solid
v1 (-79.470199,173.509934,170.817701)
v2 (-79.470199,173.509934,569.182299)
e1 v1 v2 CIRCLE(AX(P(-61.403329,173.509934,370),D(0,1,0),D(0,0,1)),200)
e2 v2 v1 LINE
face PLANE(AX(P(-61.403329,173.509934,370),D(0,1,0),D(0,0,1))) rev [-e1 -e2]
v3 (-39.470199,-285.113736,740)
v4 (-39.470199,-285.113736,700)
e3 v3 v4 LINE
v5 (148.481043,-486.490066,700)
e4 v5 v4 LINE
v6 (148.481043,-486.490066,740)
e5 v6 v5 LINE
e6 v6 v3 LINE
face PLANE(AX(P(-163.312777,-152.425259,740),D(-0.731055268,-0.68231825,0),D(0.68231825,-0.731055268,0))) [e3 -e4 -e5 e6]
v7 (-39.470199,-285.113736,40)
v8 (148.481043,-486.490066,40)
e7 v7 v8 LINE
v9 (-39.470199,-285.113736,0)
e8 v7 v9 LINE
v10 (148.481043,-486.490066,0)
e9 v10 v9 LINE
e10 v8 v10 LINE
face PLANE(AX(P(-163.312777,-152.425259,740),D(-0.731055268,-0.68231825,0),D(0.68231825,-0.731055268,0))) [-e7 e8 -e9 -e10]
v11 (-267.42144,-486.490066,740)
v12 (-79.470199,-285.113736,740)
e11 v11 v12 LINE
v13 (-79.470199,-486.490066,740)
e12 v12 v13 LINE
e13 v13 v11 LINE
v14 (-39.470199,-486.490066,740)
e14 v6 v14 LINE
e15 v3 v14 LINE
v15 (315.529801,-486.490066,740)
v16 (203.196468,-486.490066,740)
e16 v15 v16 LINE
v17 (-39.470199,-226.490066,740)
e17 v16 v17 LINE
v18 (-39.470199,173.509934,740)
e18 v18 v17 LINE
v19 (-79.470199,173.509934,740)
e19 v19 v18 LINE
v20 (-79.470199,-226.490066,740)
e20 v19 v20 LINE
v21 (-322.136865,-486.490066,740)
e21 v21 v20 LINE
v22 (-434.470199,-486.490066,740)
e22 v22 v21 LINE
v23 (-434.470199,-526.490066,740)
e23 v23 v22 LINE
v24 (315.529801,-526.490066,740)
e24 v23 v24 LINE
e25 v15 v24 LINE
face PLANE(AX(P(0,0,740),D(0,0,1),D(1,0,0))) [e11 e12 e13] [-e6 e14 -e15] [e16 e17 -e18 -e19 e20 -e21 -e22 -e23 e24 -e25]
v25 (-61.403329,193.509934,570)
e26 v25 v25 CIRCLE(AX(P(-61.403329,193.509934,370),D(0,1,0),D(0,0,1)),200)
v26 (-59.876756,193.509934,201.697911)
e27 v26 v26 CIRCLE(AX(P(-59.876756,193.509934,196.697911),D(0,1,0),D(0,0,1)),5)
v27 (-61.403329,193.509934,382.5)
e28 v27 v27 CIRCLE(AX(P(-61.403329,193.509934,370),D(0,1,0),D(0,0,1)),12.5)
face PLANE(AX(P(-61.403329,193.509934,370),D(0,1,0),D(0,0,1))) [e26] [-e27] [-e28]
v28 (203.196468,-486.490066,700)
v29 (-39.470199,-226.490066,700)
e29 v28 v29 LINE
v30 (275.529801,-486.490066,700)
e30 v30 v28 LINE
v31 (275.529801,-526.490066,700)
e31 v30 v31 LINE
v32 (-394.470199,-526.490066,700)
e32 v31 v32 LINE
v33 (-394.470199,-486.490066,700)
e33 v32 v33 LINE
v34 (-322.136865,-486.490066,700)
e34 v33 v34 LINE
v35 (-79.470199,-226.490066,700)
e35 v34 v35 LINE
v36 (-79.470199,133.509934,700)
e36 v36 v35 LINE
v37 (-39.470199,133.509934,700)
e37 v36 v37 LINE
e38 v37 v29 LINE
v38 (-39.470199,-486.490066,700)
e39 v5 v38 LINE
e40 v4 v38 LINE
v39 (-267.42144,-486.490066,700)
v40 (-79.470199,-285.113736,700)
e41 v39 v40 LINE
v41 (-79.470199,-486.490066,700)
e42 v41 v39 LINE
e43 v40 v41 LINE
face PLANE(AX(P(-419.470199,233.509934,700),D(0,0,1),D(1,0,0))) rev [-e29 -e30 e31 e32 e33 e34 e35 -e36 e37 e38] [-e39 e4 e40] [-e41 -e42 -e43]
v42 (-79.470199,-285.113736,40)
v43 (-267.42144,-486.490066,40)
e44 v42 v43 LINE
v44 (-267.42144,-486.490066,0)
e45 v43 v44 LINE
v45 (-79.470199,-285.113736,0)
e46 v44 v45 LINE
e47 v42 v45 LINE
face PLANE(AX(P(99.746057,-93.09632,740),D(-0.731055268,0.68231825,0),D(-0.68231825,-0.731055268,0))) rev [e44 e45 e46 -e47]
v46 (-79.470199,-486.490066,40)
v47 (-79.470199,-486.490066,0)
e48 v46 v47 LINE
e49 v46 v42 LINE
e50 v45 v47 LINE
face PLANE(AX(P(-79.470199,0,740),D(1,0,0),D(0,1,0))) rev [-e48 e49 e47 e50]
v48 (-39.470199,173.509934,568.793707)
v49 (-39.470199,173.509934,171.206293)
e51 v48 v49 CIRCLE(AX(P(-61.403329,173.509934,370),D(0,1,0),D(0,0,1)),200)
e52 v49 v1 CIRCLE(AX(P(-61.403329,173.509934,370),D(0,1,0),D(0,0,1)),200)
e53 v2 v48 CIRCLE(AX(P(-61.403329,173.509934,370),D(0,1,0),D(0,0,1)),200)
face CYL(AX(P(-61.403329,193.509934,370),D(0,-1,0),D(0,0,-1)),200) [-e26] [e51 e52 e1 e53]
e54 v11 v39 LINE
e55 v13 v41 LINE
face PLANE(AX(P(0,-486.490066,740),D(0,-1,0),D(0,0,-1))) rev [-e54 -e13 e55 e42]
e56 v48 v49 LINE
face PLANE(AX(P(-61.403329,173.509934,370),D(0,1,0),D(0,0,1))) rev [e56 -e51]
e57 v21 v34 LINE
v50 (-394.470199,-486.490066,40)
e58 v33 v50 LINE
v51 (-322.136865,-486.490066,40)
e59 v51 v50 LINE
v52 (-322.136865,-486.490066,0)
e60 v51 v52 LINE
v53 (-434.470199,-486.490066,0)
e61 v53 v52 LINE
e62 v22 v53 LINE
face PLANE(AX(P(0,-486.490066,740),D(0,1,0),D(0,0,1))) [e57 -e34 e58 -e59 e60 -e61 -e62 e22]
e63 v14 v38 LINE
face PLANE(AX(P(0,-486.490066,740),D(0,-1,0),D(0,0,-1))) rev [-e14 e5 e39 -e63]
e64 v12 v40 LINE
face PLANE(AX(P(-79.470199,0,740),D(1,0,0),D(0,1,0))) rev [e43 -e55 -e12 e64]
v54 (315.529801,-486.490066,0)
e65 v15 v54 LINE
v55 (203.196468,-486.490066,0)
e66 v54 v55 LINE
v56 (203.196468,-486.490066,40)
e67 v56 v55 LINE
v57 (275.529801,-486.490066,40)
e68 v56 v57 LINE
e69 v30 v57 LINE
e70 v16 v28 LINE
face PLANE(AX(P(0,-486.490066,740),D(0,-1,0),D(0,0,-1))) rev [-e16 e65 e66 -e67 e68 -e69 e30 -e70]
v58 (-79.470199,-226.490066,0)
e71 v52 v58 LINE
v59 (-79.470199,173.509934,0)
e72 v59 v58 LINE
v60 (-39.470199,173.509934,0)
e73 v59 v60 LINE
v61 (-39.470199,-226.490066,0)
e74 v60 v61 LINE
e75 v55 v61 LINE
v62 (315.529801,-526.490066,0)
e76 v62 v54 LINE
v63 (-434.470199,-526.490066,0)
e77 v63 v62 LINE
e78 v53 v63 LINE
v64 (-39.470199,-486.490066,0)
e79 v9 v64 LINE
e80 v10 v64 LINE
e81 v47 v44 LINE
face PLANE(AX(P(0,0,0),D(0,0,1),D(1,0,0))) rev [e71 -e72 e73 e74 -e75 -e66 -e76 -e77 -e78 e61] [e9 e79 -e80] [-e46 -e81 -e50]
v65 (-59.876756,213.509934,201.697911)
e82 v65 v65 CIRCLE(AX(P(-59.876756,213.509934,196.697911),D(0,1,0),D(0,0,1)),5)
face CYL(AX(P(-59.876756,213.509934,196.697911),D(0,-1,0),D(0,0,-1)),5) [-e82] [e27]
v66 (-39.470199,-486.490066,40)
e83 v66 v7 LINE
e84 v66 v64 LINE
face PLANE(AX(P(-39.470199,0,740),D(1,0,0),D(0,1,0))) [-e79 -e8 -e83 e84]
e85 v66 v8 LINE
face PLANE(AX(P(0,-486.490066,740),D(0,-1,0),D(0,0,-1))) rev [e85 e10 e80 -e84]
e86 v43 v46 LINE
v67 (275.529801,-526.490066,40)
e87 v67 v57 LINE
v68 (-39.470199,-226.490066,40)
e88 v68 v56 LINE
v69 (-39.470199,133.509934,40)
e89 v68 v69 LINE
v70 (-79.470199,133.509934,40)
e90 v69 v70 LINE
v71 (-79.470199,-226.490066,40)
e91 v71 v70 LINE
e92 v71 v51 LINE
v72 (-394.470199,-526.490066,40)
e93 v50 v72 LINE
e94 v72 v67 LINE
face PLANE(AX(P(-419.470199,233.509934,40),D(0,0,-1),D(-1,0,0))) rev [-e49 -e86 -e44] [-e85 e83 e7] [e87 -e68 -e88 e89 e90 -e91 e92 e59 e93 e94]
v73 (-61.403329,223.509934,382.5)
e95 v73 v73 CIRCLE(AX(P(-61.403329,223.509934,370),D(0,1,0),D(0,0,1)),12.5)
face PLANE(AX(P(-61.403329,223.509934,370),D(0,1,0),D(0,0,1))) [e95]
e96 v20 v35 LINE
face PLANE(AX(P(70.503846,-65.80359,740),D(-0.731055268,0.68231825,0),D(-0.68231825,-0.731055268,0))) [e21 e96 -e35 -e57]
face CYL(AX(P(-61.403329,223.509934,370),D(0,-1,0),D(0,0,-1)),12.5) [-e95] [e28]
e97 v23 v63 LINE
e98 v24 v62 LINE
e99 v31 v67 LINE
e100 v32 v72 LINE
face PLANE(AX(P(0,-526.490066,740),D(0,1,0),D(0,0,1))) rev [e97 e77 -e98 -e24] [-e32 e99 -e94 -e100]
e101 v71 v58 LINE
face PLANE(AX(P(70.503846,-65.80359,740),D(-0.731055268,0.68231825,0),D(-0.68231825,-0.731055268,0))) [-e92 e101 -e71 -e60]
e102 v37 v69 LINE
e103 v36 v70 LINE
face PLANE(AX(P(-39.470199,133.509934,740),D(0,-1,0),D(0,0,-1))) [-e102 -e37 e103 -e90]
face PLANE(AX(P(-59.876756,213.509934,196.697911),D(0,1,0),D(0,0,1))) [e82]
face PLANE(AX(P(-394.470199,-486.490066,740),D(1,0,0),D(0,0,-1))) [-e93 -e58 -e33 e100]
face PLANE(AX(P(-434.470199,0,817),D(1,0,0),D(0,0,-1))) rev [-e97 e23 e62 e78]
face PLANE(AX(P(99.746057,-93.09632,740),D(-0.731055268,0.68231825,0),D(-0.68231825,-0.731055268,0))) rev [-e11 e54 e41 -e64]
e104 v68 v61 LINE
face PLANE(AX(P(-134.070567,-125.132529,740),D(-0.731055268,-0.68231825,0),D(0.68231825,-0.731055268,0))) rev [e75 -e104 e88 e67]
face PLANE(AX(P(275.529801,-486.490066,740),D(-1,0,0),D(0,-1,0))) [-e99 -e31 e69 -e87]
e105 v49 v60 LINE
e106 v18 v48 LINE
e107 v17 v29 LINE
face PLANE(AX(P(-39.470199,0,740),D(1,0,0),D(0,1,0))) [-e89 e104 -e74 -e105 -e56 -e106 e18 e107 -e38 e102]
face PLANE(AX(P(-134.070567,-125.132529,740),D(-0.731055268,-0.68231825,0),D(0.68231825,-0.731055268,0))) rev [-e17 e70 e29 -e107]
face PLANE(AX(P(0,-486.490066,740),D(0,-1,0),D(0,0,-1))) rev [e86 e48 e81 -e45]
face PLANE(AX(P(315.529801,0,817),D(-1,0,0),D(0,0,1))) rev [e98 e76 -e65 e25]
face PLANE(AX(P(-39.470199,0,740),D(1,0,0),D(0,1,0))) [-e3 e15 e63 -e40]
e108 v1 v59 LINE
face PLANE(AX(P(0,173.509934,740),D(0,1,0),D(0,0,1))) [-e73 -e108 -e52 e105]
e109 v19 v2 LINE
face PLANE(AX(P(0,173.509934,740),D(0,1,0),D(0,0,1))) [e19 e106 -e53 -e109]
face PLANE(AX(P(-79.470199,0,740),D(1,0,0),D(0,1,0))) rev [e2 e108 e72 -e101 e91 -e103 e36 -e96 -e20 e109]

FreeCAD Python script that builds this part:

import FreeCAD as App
import Part
import Sketcher
Q = App.Units.Quantity

doc = App.newDocument("Part")
params = doc.addObject("Spreadsheet::Sheet", "Params")
for row, (alias, value) in enumerate([
    ("sketch1_width", "800 mm"),
    ("sketch1_width2", "40 mm"),
    ("sketch1_height", "400 mm"),
    ("pad1_length", "740 mm"),
    ("sketch2_width", "720 mm"),
    ("sketch2_height", "660 mm"),
    ("pocket1_length", "760 mm"),
    ("sketch3_width", "25 mm"),
    ("sketch3_height", "40 mm"),
    ("pocket2_length", "817 mm"),
    ("sketch4_width", "40 mm"),
    ("pad2_length", "740 mm"),
    ("sketch5_width", "40 mm"),
    ("pad3_length", "740 mm"),
    ("sketch6_diameter", "400 mm"),
    ("pad4_length", "20 mm"),
    ("sketch7_diameter", "25 mm"),
    ("pad5_length", "30 mm"),
    ("sketch8_diameter", "10 mm"),
    ("pad6_length", "20 mm"),
], start=1):
    params.set(f"A{row}", alias)
    params.set(f"B{row}", "=" + value)
    params.setAlias(f"B{row}", alias)

body = doc.addObject("PartDesign::Body", "Body")

# Sketch on XY plane
sketch1 = body.newObject("Sketcher::SketchObject", "Sketch")
sketch1.AttachmentSupport = (doc.getObject("XY_Plane"), [""])
sketch1.MapMode = "FlatFace"
sketch1.addGeometry([
    Part.LineSegment(App.Vector(-79, 174, 0), App.Vector(-79, -226, 0)),  # 0
    Part.LineSegment(App.Vector(-79, -226, 0), App.Vector(-322, -486, 0)),  # 1
    Part.LineSegment(App.Vector(-322, -486, 0), App.Vector(-459, -486, 0)),  # 2
    Part.LineSegment(App.Vector(-459, -486, 0), App.Vector(-459, -526, 0)),  # 3
    Part.LineSegment(App.Vector(-459, -526, 0), App.Vector(341, -526, 0)),  # 4
    Part.LineSegment(App.Vector(341, -526, 0), App.Vector(341, -486, 0)),  # 5
    Part.LineSegment(App.Vector(341, -486, 0), App.Vector(203, -486, 0)),  # 6
    Part.LineSegment(App.Vector(203, -486, 0), App.Vector(-39, -226, 0)),  # 7
    Part.LineSegment(App.Vector(-39, -226, 0), App.Vector(-39, 174, 0)),  # 8
    Part.LineSegment(App.Vector(-39, 174, 0), App.Vector(-79, 174, 0)),  # 9
    Part.LineSegment(App.Vector(-79, -285, 0), App.Vector(-79, -486, 0)),  # 10
    Part.LineSegment(App.Vector(-79, -486, 0), App.Vector(-267, -486, 0)),  # 11
    Part.LineSegment(App.Vector(-267, -486, 0), App.Vector(-79, -285, 0)),  # 12
    Part.LineSegment(App.Vector(-39, -285, 0), App.Vector(148, -486, 0)),  # 13
    Part.LineSegment(App.Vector(148, -486, 0), App.Vector(-39, -486, 0)),  # 14
    Part.LineSegment(App.Vector(-39, -486, 0), App.Vector(-39, -285, 0)),  # 15
], False)
sketch1.addConstraint([
    Sketcher.Constraint("Coincident", 0, 2, 1, 1),
    Sketcher.Constraint("Coincident", 1, 2, 2, 1),
    Sketcher.Constraint("Coincident", 2, 2, 3, 1),
    Sketcher.Constraint("Coincident", 3, 2, 4, 1),
    Sketcher.Constraint("Coincident", 4, 2, 5, 1),
    Sketcher.Constraint("Coincident", 5, 2, 6, 1),
    Sketcher.Constraint("Coincident", 6, 2, 7, 1),
    Sketcher.Constraint("Coincident", 7, 2, 8, 1),
    Sketcher.Constraint("Coincident", 8, 2, 9, 1),
    Sketcher.Constraint("Coincident", 9, 2, 0, 1),
    Sketcher.Constraint("Coincident", 10, 2, 11, 1),
    Sketcher.Constraint("Coincident", 11, 2, 12, 1),
    Sketcher.Constraint("Coincident", 12, 2, 10, 1),
    Sketcher.Constraint("Coincident", 13, 2, 14, 1),
    Sketcher.Constraint("Coincident", 14, 2, 15, 1),
    Sketcher.Constraint("Coincident", 15, 2, 13, 1),
    Sketcher.Constraint("Vertical", 0),
    Sketcher.Constraint("Horizontal", 2),
    Sketcher.Constraint("Vertical", 3),
    Sketcher.Constraint("Horizontal", 4),
    Sketcher.Constraint("Vertical", 5),
    Sketcher.Constraint("Horizontal", 6),
    Sketcher.Constraint("Vertical", 8),
    Sketcher.Constraint("Horizontal", 9),
    Sketcher.Constraint("Vertical", 10),
    Sketcher.Constraint("Horizontal", 11),
    Sketcher.Constraint("Horizontal", 14),
    Sketcher.Constraint("Vertical", 15),
    Sketcher.Constraint("Parallel", 1, 12),
    Sketcher.Constraint("Parallel", 7, 13),
    Sketcher.Constraint("Horizontal", 2, 2, 5, 2),
    Sketcher.Constraint("Horizontal", 0, 2, 7, 2),
    Sketcher.Constraint("Horizontal", 6, 2, 10, 2),
    Sketcher.Constraint("Horizontal", 11, 2, 13, 2),
    Sketcher.Constraint("Horizontal", 12, 2, 15, 2),
    Sketcher.Constraint("Vertical", 9, 2, 10, 2),
    Sketcher.Constraint("Vertical", 8, 2, 14, 2),
    Sketcher.Constraint("Equal", 2, 6),
    Sketcher.Constraint("Equal", 11, 14),
    Sketcher.Constraint("Equal", 9, 3),
    Sketcher.Constraint("DistanceX", 4, 1, 4, 2, Q("800 mm")),
    Sketcher.Constraint("DistanceX", 9, 2, 9, 1, Q("40 mm")),
    Sketcher.Constraint("DistanceY", 0, 2, 0, 1, Q("400 mm")),
    Sketcher.Constraint("DistanceY", 1, 2, 0, 2, Q("260 mm")),
    Sketcher.Constraint("DistanceX", 11, 2, 11, 1, Q("187.951241 mm")),
    Sketcher.Constraint("DistanceY", 10, 2, 10, 1, Q("201.37633 mm")),
    Sketcher.Constraint("DistanceX", 0, 2, -1, 1, Q("79.470199 mm")),
    Sketcher.Constraint("DistanceY", 0, 2, -1, 1, Q("226.490066 mm")),
])
sketch1.setExpression("Constraints[40]", "Params.sketch1_width")
sketch1.setExpression("Constraints[41]", "Params.sketch1_width2")
sketch1.setExpression("Constraints[42]", "Params.sketch1_height")
pad1 = body.newObject("PartDesign::Pad", "Pad")
pad1.Profile = sketch1
pad1.setExpression("Length", "Params.pad1_length")

# Sketch on XZ plane
sketch2 = body.newObject("Sketcher::SketchObject", "Sketch001")
sketch2.AttachmentSupport = (doc.getObject("XZ_Plane"), [""])
sketch2.MapMode = "FlatFace"
sketch2.AttachmentOffset = App.Placement(App.Vector(0, 0, 526.490066), App.Rotation())
sketch2.addGeometry([
    Part.LineSegment(App.Vector(-419, 700, 0), App.Vector(-419, 40, 0)),
    Part.LineSegment(App.Vector(-419, 40, 0), App.Vector(301, 40, 0)),
    Part.LineSegment(App.Vector(301, 40, 0), App.Vector(301, 700, 0)),
    Part.LineSegment(App.Vector(301, 700, 0), App.Vector(-419, 700, 0)),
], False)
sketch2.addConstraint([
    Sketcher.Constraint("Coincident", 0, 2, 1, 1),
    Sketcher.Constraint("Coincident", 1, 2, 2, 1),
    Sketcher.Constraint("Coincident", 2, 2, 3, 1),
    Sketcher.Constraint("Coincident", 3, 2, 0, 1),
    Sketcher.Constraint("Vertical", 0),
    Sketcher.Constraint("Horizontal", 1),
    Sketcher.Constraint("Vertical", 2),
    Sketcher.Constraint("Horizontal", 3),
    Sketcher.Constraint("DistanceX", 1, 1, 1, 2, Q("720 mm")),
    Sketcher.Constraint("DistanceY", 0, 2, 0, 1, Q("660 mm")),
    Sketcher.Constraint("DistanceY", -1, 1, 0, 2, Q("40 mm")),
    Sketcher.Constraint("DistanceX", 0, 2, -1, 1, Q("419.470199 mm")),
])
sketch2.setExpression("Constraints[8]", "Params.sketch2_width")
sketch2.setExpression("Constraints[9]", "Params.sketch2_height")
pocket1 = body.newObject("PartDesign::Pocket", "Pocket")
pocket1.Profile = sketch2
pocket1.setExpression("Length", "Params.pocket1_length")

# Sketch on XY plane
sketch3 = body.newObject("Sketcher::SketchObject", "Sketch002")
sketch3.AttachmentSupport = (doc.getObject("XY_Plane"), [""])
sketch3.MapMode = "FlatFace"
sketch3.addGeometry([
    Part.LineSegment(App.Vector(341, -486, 0), App.Vector(341, -526, 0)),  # 0
    Part.LineSegment(App.Vector(341, -526, 0), App.Vector(316, -526, 0)),  # 1
    Part.LineSegment(App.Vector(316, -526, 0), App.Vector(316, -486, 0)),  # 2
    Part.LineSegment(App.Vector(316, -486, 0), App.Vector(341, -486, 0)),  # 3
    Part.LineSegment(App.Vector(-434, -486, 0), App.Vector(-434, -526, 0)),  # 4
    Part.LineSegment(App.Vector(-434, -526, 0), App.Vector(-459, -526, 0)),  # 5
    Part.LineSegment(App.Vector(-459, -526, 0), App.Vector(-459, -486, 0)),  # 6
    Part.LineSegment(App.Vector(-459, -486, 0), App.Vector(-434, -486, 0)),  # 7
], False)
sketch3.addConstraint([
    Sketcher.Constraint("Coincident", 0, 2, 1, 1),
    Sketcher.Constraint("Coincident", 1, 2, 2, 1),
    Sketcher.Constraint("Coincident", 2, 2, 3, 1),
    Sketcher.Constraint("Coincident", 3, 2, 0, 1),
    Sketcher.Constraint("Coincident", 4, 2, 5, 1),
    Sketcher.Constraint("Coincident", 5, 2, 6, 1),
    Sketcher.Constraint("Coincident", 6, 2, 7, 1),
    Sketcher.Constraint("Coincident", 7, 2, 4, 1),
    Sketcher.Constraint("Vertical", 0),
    Sketcher.Constraint("Horizontal", 1),
    Sketcher.Constraint("Vertical", 2),
    Sketcher.Constraint("Horizontal", 3),
    Sketcher.Constraint("Vertical", 4),
    Sketcher.Constraint("Horizontal", 5),
    Sketcher.Constraint("Vertical", 6),
    Sketcher.Constraint("Horizontal", 7),
    Sketcher.Constraint("Horizontal", 1, 2, 4, 2),
    Sketcher.Constraint("Horizontal", 3, 2, 6, 2),
    Sketcher.Constraint("Equal", 3, 5),
    Sketcher.Constraint("DistanceX", 1, 2, 1, 1, Q("25 mm")),
    Sketcher.Constraint("DistanceY", 0, 2, 0, 1, Q("40 mm")),
    Sketcher.Constraint("DistanceX", 4, 2, 1, 2, Q("750 mm")),
    Sketcher.Constraint("DistanceX", -1, 1, 0, 2, Q("340.529801 mm")),
    Sketcher.Constraint("DistanceY", 0, 2, -1, 1, Q("526.490066 mm")),
])
sketch3.setExpression("Constraints[19]", "Params.sketch3_width")
sketch3.setExpression("Constraints[20]", "Params.sketch3_height")
pocket2 = body.newObject("PartDesign::Pocket", "Pocket001")
pocket2.Profile = sketch3
pocket2.setExpression("Length", "Params.pocket2_length")
pocket2.Reversed = True

# Sketch on XY plane
sketch4 = body.newObject("Sketcher::SketchObject", "Sketch003")
sketch4.AttachmentSupport = (doc.getObject("XY_Plane"), [""])
sketch4.MapMode = "FlatFace"
sketch4.addGeometry([
    Part.LineSegment(App.Vector(316, -486, 0), App.Vector(316, -526, 0)),  # 0
    Part.LineSegment(App.Vector(316, -526, 0), App.Vector(276, -526, 0)),  # 1
    Part.LineSegment(App.Vector(276, -526, 0), App.Vector(276, -486, 0)),  # 2
    Part.LineSegment(App.Vector(276, -486, 0), App.Vector(316, -486, 0)),  # 3
    Part.LineSegment(App.Vector(-394, -486, 0), App.Vector(-394, -526, 0)),  # 4
    Part.LineSegment(App.Vector(-394, -526, 0), App.Vector(-434, -526, 0)),  # 5
    Part.LineSegment(App.Vector(-434, -526, 0), App.Vector(-434, -486, 0)),  # 6
    Part.LineSegment(App.Vector(-434, -486, 0), App.Vector(-394, -486, 0)),  # 7
], False)
sketch4.addConstraint([
    Sketcher.Constraint("Coincident", 0, 2, 1, 1),
    Sketcher.Constraint("Coincident", 1, 2, 2, 1),
    Sketcher.Constraint("Coincident", 2, 2, 3, 1),
    Sketcher.Constraint("Coincident", 3, 2, 0, 1),
    Sketcher.Constraint("Coincident", 4, 2, 5, 1),
    Sketcher.Constraint("Coincident", 5, 2, 6, 1),
    Sketcher.Constraint("Coincident", 6, 2, 7, 1),
    Sketcher.Constraint("Coincident", 7, 2, 4, 1),
    Sketcher.Constraint("Vertical", 0),
    Sketcher.Constraint("Horizontal", 1),
    Sketcher.Constraint("Vertical", 2),
    Sketcher.Constraint("Horizontal", 3),
    Sketcher.Constraint("Vertical", 4),
    Sketcher.Constraint("Horizontal", 5),
    Sketcher.Constraint("Vertical", 6),
    Sketcher.Constraint("Horizontal", 7),
    Sketcher.Constraint("Horizontal", 1, 2, 4, 2),
    Sketcher.Constraint("Horizontal", 3, 2, 6, 2),
    Sketcher.Constraint("Equal", 3, 5),
    Sketcher.Constraint("Equal", 7, 0),
    Sketcher.Constraint("DistanceX", 1, 2, 1, 1, Q("40 mm")),
    Sketcher.Constraint("DistanceX", 4, 2, 1, 2, Q("670 mm")),
    Sketcher.Constraint("DistanceX", -1, 1, 0, 2, Q("315.529801 mm")),
    Sketcher.Constraint("DistanceY", 0, 2, -1, 1, Q("526.490066 mm")),
])
sketch4.setExpression("Constraints[20]", "Params.sketch4_width")
pad2 = body.newObject("PartDesign::Pad", "Pad001")
pad2.Profile = sketch4
pad2.setExpression("Length", "Params.pad2_length")

# Sketch on XY plane
sketch5 = body.newObject("Sketcher::SketchObject", "Sketch004")
sketch5.AttachmentSupport = (doc.getObject("XY_Plane"), [""])
sketch5.MapMode = "FlatFace"
sketch5.addGeometry([
    Part.LineSegment(App.Vector(-39, 174, 0), App.Vector(-39, 134, 0)),
    Part.LineSegment(App.Vector(-39, 134, 0), App.Vector(-79, 134, 0)),
    Part.LineSegment(App.Vector(-79, 134, 0), App.Vector(-79, 174, 0)),
    Part.LineSegment(App.Vector(-79, 174, 0), App.Vector(-39, 174, 0)),
], False)
sketch5.addConstraint([
    Sketcher.Constraint("Coincident", 0, 2, 1, 1),
    Sketcher.Constraint("Coincident", 1, 2, 2, 1),
    Sketcher.Constraint("Coincident", 2, 2, 3, 1),
    Sketcher.Constraint("Coincident", 3, 2, 0, 1),
    Sketcher.Constraint("Vertical", 0),
    Sketcher.Constraint("Horizontal", 1),
    Sketcher.Constraint("Vertical", 2),
    Sketcher.Constraint("Horizontal", 3),
    Sketcher.Constraint("Equal", 3, 0),
    Sketcher.Constraint("DistanceX", 1, 2, 1, 1, Q("40 mm")),
    Sketcher.Constraint("DistanceX", 0, 2, -1, 1, Q("39.470199 mm")),
    Sketcher.Constraint("DistanceY", -1, 1, 0, 2, Q("133.509934 mm")),
])
sketch5.setExpression("Constraints[9]", "Params.sketch5_width")
pad3 = body.newObject("PartDesign::Pad", "Pad002")
pad3.Profile = sketch5
pad3.setExpression("Length", "Params.pad3_length")

# Sketch on XZ plane
sketch6 = body.newObject("Sketcher::SketchObject", "Sketch005")
sketch6.AttachmentSupport = (doc.getObject("XZ_Plane"), [""])
sketch6.MapMode = "FlatFace"
sketch6.AttachmentOffset = App.Placement(App.Vector(0, 0, -173.509934), App.Rotation())
sketch6.addGeometry(Part.Circle(App.Vector(-61, 370, 0), App.Vector(0, 0, 1), 200), False)
sketch6.addConstraint([
    Sketcher.Constraint("Diameter", 0, Q("400 mm")),
    Sketcher.Constraint("DistanceY", -1, 1, 0, 3, Q("370 mm")),
    Sketcher.Constraint("DistanceX", 0, 3, -1, 1, Q("61.403329 mm")),
])
sketch6.setExpression("Constraints[0]", "Params.sketch6_diameter")
pad4 = body.newObject("PartDesign::Pad", "Pad003")
pad4.Profile = sketch6
pad4.setExpression("Length", "Params.pad4_length")
pad4.Reversed = True

# Sketch on XZ plane
sketch7 = body.newObject("Sketcher::SketchObject", "Sketch006")
sketch7.AttachmentSupport = (doc.getObject("XZ_Plane"), [""])
sketch7.MapMode = "FlatFace"
sketch7.AttachmentOffset = App.Placement(App.Vector(0, 0, -193.509934), App.Rotation())
sketch7.addGeometry(Part.Circle(App.Vector(-61, 370, 0), App.Vector(0, 0, 1), 12), False)
sketch7.addConstraint([
    Sketcher.Constraint("Diameter", 0, Q("25 mm")),
    Sketcher.Constraint("DistanceY", -1, 1, 0, 3, Q("370 mm")),
    Sketcher.Constraint("DistanceX", 0, 3, -1, 1, Q("61.403329 mm")),
])
sketch7.setExpression("Constraints[0]", "Params.sketch7_diameter")
pad5 = body.newObject("PartDesign::Pad", "Pad004")
pad5.Profile = sketch7
pad5.setExpression("Length", "Params.pad5_length")
pad5.Reversed = True

# Sketch on XZ plane
sketch8 = body.newObject("Sketcher::SketchObject", "Sketch007")
sketch8.AttachmentSupport = (doc.getObject("XZ_Plane"), [""])
sketch8.MapMode = "FlatFace"
sketch8.AttachmentOffset = App.Placement(App.Vector(0, 0, -193.509934), App.Rotation())
sketch8.addGeometry(Part.Circle(App.Vector(-60, 197, 0), App.Vector(0, 0, 1), 5), False)
sketch8.addConstraint([
    Sketcher.Constraint("Diameter", 0, Q("10 mm")),
    Sketcher.Constraint("DistanceY", -1, 1, 0, 3, Q("196.697911 mm")),
    Sketcher.Constraint("DistanceX", 0, 3, -1, 1, Q("59.876756 mm")),
])
sketch8.setExpression("Constraints[0]", "Params.sketch8_diameter")
pad6 = body.newObject("PartDesign::Pad", "Pad005")
pad6.Profile = sketch8
pad6.setExpression("Length", "Params.pad6_length")
pad6.Reversed = True

doc.recompute()
